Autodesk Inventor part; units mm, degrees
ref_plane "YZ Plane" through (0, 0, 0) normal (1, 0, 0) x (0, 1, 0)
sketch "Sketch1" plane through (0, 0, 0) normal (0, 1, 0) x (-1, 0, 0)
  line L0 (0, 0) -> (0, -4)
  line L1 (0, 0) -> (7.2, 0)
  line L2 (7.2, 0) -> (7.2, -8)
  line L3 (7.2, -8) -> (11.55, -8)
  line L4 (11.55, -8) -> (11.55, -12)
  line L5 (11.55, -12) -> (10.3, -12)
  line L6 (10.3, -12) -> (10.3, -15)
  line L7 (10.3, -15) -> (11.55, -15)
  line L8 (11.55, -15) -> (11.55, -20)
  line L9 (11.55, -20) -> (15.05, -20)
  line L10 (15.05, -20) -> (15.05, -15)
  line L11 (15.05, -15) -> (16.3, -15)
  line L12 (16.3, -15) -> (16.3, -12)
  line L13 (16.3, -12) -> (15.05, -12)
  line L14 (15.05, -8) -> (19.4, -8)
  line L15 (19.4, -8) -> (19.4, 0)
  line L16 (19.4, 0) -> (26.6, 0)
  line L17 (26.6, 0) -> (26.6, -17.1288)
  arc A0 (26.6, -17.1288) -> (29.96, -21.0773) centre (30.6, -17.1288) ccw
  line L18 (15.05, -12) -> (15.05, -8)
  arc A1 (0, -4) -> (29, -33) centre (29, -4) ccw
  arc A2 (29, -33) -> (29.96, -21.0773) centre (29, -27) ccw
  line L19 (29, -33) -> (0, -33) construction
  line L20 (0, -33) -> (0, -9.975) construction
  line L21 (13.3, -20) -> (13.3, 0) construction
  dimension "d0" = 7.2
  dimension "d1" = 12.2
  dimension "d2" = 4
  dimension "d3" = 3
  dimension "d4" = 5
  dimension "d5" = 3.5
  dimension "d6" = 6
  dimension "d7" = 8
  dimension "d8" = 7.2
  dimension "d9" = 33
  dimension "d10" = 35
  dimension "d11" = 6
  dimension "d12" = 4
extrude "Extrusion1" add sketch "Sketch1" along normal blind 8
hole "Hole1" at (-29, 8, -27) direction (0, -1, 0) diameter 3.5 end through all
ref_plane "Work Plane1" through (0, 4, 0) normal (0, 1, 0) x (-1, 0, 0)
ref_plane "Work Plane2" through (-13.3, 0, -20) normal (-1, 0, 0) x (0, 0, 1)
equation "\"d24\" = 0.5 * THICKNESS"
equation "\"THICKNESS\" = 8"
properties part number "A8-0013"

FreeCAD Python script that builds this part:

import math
import FreeCAD as App
import Part
import Sketcher

V = App.Vector

doc = App.newDocument("Part")
body = doc.addObject("PartDesign::Body", "Body")

# Sketch on XZ plane
sketch1 = doc.addObject("Sketcher::SketchObject", "Sketch")
body.addObject(sketch1)
sketch1.AttachmentSupport = (doc.XZ_Plane, [""])
sketch1.MapMode = "FlatFace"
sketch1.addGeometry([
    Part.LineSegment(V(-7.2, 0, 0), V(0, 0, 0)),  # 0
    Part.LineSegment(V(0, 0, 0), V(0, -4, 0)),  # 1
    Part.ArcOfCircle(Part.Circle(V(-29, -4, 0), V(0, 0, 1), 29), math.radians(-90), math.radians(0)),  # 2
    Part.ArcOfCircle(Part.Circle(V(-29, -27, 0), V(0, 0, 1), 6), math.radians(99), math.radians(270)),  # 3
    Part.ArcOfCircle(Part.Circle(V(-30.6, -17.1, 0), V(0, 0, 1), 4), math.radians(-81), math.radians(0)),  # 4
    Part.LineSegment(V(-26.6, -17.1, 0), V(-26.6, 0, 0)),  # 5
    Part.LineSegment(V(-26.6, 0, 0), V(-19.4, 0, 0)),  # 6
    Part.LineSegment(V(-19.4, 0, 0), V(-19.4, -8, 0)),  # 7
    Part.LineSegment(V(-19.4, -8, 0), V(-15.1, -8, 0)),  # 8
    Part.LineSegment(V(-15.1, -8, 0), V(-15.1, -12, 0)),  # 9
    Part.LineSegment(V(-15.1, -12, 0), V(-16.3, -12, 0)),  # 10
    Part.LineSegment(V(-16.3, -12, 0), V(-16.3, -15, 0)),  # 11
    Part.LineSegment(V(-16.3, -15, 0), V(-15.1, -15, 0)),  # 12
    Part.LineSegment(V(-15.1, -15, 0), V(-15.1, -20, 0)),  # 13
    Part.LineSegment(V(-15.1, -20, 0), V(-11.6, -20, 0)),  # 14
    Part.LineSegment(V(-11.6, -20, 0), V(-11.6, -15, 0)),  # 15
    Part.LineSegment(V(-11.6, -15, 0), V(-10.3, -15, 0)),  # 16
    Part.LineSegment(V(-10.3, -15, 0), V(-10.3, -12, 0)),  # 17
    Part.LineSegment(V(-10.3, -12, 0), V(-11.6, -12, 0)),  # 18
    Part.LineSegment(V(-11.6, -12, 0), V(-11.6, -8, 0)),  # 19
    Part.LineSegment(V(-11.6, -8, 0), V(-7.2, -8, 0)),  # 20
    Part.LineSegment(V(-7.2, -8, 0), V(-7.2, 0, 0)),  # 21
], False)
sketch1.addConstraint([
    Sketcher.Constraint("Coincident", 0, 2, 1, 1),
    Sketcher.Constraint("Tangent", 1, 2, 2, 2),
    Sketcher.Constraint("Tangent", 2, 1, 3, 2),
    Sketcher.Constraint("Tangent", 3, 1, 4, 1),
    Sketcher.Constraint("Tangent", 4, 2, 5, 1),
    Sketcher.Constraint("Coincident", 5, 2, 6, 1),
    Sketcher.Constraint("Coincident", 6, 2, 7, 1),
    Sketcher.Constraint("Coincident", 7, 2, 8, 1),
    Sketcher.Constraint("Coincident", 8, 2, 9, 1),
    Sketcher.Constraint("Coincident", 9, 2, 10, 1),
    Sketcher.Constraint("Coincident", 10, 2, 11, 1),
    Sketcher.Constraint("Coincident", 11, 2, 12, 1),
    Sketcher.Constraint("Coincident", 12, 2, 13, 1),
    Sketcher.Constraint("Coincident", 13, 2, 14, 1),
    Sketcher.Constraint("Coincident", 14, 2, 15, 1),
    Sketcher.Constraint("Coincident", 15, 2, 16, 1),
    Sketcher.Constraint("Coincident", 16, 2, 17, 1),
    Sketcher.Constraint("Coincident", 17, 2, 18, 1),
    Sketcher.Constraint("Coincident", 18, 2, 19, 1),
    Sketcher.Constraint("Coincident", 19, 2, 20, 1),
    Sketcher.Constraint("Coincident", 20, 2, 21, 1),
    Sketcher.Constraint("Coincident", 21, 2, 0, 1),
    Sketcher.Constraint("Horizontal", 0),
    Sketcher.Constraint("Vertical", 1),
    Sketcher.Constraint("Vertical", 5),
    Sketcher.Constraint("Horizontal", 6),
    Sketcher.Constraint("Vertical", 7),
    Sketcher.Constraint("Horizontal", 8),
    Sketcher.Constraint("Vertical", 9),
    Sketcher.Constraint("Horizontal", 10),
    Sketcher.Constraint("Vertical", 11),
    Sketcher.Constraint("Horizontal", 12),
    Sketcher.Constraint("Vertical", 13),
    Sketcher.Constraint("Horizontal", 14),
    Sketcher.Constraint("Vertical", 15),
    Sketcher.Constraint("Horizontal", 16),
    Sketcher.Constraint("Vertical", 17),
    Sketcher.Constraint("Horizontal", 18),
    Sketcher.Constraint("Vertical", 19),
    Sketcher.Constraint("Horizontal", 20),
    Sketcher.Constraint("Vertical", 21),
    Sketcher.Constraint("Coincident", 0, 2, -1, 1),
    Sketcher.Constraint("PointOnObject", 5, 2, -1),
    Sketcher.Constraint("Horizontal", 12, 2, 15, 2),
    Sketcher.Constraint("Horizontal", 10, 2, 17, 2),
    Sketcher.Constraint("Horizontal", 8, 2, 19, 2),
    Sketcher.Constraint("Vertical", 2, 3, 3, 3),
    Sketcher.Constraint("Vertical", 9, 2, 12, 2),
    Sketcher.Constraint("Vertical", 15, 2, 18, 2),
    Sketcher.Constraint("Equal", 0, 6),
    Sketcher.Constraint("Equal", 12, 16),
    Sketcher.Constraint("Equal", 8, 20),
    Sketcher.Constraint("Equal", 1, 9),
    Sketcher.Constraint("Radius", 3, 6.0),
    Sketcher.Constraint("Radius", 4, 4.0),
    Sketcher.Constraint("DistanceY", 1, 2, 1, 1, 4.0),
    Sketcher.Constraint("DistanceY", 7, 2, 7, 1, 8.0),
    Sketcher.Constraint("DistanceY", 11, 2, 11, 1, 3.0),
    Sketcher.Constraint("DistanceY", 13, 2, 13, 1, 5.0),
    Sketcher.Constraint("DistanceX", 0, 1, 0, 2, 7.2),
    Sketcher.Constraint("DistanceX", 14, 1, 14, 2, 3.5),
    Sketcher.Constraint("DistanceY", 2, 1, -1, 1, 33.0),
    Sketcher.Constraint("DistanceX", 11, 2, 16, 2, 6.0),
    Sketcher.Constraint("DistanceX", 8, 1, 8, 2, 4.35),
])
pad1 = doc.addObject("PartDesign::Pad", "Pad")
body.addObject(pad1)
pad1.Profile = sketch1
pad1.Length = 8
pad1.Reversed = True

# Sketch on XZ plane
sketch2 = doc.addObject("Sketcher::SketchObject", "Sketch001")
body.addObject(sketch2)
sketch2.AttachmentSupport = (doc.XZ_Plane, [""])
sketch2.MapMode = "FlatFace"
sketch2.AttachmentOffset = App.Placement(V(0, 0, -8), App.Rotation())
sketch2.addGeometry(Part.Circle(V(-29, -27, 0), V(0, 0, 1), 1.8), False)
sketch2.addConstraint([
    Sketcher.Constraint("Diameter", 0, 3.5),
    Sketcher.Constraint("DistanceX", 0, 3, -1, 1, 29.0),
    Sketcher.Constraint("DistanceY", 0, 3, -1, 1, 27.0),
])
doc.recompute()
hole = doc.addObject("PartDesign::Hole", "Hole")
body.addObject(hole)
hole.Profile = sketch2
hole.ThreadType = "None"
hole.Diameter = 3.5
hole.DepthType = "ThroughAll"
hole.Reversed = True

doc.recompute()
